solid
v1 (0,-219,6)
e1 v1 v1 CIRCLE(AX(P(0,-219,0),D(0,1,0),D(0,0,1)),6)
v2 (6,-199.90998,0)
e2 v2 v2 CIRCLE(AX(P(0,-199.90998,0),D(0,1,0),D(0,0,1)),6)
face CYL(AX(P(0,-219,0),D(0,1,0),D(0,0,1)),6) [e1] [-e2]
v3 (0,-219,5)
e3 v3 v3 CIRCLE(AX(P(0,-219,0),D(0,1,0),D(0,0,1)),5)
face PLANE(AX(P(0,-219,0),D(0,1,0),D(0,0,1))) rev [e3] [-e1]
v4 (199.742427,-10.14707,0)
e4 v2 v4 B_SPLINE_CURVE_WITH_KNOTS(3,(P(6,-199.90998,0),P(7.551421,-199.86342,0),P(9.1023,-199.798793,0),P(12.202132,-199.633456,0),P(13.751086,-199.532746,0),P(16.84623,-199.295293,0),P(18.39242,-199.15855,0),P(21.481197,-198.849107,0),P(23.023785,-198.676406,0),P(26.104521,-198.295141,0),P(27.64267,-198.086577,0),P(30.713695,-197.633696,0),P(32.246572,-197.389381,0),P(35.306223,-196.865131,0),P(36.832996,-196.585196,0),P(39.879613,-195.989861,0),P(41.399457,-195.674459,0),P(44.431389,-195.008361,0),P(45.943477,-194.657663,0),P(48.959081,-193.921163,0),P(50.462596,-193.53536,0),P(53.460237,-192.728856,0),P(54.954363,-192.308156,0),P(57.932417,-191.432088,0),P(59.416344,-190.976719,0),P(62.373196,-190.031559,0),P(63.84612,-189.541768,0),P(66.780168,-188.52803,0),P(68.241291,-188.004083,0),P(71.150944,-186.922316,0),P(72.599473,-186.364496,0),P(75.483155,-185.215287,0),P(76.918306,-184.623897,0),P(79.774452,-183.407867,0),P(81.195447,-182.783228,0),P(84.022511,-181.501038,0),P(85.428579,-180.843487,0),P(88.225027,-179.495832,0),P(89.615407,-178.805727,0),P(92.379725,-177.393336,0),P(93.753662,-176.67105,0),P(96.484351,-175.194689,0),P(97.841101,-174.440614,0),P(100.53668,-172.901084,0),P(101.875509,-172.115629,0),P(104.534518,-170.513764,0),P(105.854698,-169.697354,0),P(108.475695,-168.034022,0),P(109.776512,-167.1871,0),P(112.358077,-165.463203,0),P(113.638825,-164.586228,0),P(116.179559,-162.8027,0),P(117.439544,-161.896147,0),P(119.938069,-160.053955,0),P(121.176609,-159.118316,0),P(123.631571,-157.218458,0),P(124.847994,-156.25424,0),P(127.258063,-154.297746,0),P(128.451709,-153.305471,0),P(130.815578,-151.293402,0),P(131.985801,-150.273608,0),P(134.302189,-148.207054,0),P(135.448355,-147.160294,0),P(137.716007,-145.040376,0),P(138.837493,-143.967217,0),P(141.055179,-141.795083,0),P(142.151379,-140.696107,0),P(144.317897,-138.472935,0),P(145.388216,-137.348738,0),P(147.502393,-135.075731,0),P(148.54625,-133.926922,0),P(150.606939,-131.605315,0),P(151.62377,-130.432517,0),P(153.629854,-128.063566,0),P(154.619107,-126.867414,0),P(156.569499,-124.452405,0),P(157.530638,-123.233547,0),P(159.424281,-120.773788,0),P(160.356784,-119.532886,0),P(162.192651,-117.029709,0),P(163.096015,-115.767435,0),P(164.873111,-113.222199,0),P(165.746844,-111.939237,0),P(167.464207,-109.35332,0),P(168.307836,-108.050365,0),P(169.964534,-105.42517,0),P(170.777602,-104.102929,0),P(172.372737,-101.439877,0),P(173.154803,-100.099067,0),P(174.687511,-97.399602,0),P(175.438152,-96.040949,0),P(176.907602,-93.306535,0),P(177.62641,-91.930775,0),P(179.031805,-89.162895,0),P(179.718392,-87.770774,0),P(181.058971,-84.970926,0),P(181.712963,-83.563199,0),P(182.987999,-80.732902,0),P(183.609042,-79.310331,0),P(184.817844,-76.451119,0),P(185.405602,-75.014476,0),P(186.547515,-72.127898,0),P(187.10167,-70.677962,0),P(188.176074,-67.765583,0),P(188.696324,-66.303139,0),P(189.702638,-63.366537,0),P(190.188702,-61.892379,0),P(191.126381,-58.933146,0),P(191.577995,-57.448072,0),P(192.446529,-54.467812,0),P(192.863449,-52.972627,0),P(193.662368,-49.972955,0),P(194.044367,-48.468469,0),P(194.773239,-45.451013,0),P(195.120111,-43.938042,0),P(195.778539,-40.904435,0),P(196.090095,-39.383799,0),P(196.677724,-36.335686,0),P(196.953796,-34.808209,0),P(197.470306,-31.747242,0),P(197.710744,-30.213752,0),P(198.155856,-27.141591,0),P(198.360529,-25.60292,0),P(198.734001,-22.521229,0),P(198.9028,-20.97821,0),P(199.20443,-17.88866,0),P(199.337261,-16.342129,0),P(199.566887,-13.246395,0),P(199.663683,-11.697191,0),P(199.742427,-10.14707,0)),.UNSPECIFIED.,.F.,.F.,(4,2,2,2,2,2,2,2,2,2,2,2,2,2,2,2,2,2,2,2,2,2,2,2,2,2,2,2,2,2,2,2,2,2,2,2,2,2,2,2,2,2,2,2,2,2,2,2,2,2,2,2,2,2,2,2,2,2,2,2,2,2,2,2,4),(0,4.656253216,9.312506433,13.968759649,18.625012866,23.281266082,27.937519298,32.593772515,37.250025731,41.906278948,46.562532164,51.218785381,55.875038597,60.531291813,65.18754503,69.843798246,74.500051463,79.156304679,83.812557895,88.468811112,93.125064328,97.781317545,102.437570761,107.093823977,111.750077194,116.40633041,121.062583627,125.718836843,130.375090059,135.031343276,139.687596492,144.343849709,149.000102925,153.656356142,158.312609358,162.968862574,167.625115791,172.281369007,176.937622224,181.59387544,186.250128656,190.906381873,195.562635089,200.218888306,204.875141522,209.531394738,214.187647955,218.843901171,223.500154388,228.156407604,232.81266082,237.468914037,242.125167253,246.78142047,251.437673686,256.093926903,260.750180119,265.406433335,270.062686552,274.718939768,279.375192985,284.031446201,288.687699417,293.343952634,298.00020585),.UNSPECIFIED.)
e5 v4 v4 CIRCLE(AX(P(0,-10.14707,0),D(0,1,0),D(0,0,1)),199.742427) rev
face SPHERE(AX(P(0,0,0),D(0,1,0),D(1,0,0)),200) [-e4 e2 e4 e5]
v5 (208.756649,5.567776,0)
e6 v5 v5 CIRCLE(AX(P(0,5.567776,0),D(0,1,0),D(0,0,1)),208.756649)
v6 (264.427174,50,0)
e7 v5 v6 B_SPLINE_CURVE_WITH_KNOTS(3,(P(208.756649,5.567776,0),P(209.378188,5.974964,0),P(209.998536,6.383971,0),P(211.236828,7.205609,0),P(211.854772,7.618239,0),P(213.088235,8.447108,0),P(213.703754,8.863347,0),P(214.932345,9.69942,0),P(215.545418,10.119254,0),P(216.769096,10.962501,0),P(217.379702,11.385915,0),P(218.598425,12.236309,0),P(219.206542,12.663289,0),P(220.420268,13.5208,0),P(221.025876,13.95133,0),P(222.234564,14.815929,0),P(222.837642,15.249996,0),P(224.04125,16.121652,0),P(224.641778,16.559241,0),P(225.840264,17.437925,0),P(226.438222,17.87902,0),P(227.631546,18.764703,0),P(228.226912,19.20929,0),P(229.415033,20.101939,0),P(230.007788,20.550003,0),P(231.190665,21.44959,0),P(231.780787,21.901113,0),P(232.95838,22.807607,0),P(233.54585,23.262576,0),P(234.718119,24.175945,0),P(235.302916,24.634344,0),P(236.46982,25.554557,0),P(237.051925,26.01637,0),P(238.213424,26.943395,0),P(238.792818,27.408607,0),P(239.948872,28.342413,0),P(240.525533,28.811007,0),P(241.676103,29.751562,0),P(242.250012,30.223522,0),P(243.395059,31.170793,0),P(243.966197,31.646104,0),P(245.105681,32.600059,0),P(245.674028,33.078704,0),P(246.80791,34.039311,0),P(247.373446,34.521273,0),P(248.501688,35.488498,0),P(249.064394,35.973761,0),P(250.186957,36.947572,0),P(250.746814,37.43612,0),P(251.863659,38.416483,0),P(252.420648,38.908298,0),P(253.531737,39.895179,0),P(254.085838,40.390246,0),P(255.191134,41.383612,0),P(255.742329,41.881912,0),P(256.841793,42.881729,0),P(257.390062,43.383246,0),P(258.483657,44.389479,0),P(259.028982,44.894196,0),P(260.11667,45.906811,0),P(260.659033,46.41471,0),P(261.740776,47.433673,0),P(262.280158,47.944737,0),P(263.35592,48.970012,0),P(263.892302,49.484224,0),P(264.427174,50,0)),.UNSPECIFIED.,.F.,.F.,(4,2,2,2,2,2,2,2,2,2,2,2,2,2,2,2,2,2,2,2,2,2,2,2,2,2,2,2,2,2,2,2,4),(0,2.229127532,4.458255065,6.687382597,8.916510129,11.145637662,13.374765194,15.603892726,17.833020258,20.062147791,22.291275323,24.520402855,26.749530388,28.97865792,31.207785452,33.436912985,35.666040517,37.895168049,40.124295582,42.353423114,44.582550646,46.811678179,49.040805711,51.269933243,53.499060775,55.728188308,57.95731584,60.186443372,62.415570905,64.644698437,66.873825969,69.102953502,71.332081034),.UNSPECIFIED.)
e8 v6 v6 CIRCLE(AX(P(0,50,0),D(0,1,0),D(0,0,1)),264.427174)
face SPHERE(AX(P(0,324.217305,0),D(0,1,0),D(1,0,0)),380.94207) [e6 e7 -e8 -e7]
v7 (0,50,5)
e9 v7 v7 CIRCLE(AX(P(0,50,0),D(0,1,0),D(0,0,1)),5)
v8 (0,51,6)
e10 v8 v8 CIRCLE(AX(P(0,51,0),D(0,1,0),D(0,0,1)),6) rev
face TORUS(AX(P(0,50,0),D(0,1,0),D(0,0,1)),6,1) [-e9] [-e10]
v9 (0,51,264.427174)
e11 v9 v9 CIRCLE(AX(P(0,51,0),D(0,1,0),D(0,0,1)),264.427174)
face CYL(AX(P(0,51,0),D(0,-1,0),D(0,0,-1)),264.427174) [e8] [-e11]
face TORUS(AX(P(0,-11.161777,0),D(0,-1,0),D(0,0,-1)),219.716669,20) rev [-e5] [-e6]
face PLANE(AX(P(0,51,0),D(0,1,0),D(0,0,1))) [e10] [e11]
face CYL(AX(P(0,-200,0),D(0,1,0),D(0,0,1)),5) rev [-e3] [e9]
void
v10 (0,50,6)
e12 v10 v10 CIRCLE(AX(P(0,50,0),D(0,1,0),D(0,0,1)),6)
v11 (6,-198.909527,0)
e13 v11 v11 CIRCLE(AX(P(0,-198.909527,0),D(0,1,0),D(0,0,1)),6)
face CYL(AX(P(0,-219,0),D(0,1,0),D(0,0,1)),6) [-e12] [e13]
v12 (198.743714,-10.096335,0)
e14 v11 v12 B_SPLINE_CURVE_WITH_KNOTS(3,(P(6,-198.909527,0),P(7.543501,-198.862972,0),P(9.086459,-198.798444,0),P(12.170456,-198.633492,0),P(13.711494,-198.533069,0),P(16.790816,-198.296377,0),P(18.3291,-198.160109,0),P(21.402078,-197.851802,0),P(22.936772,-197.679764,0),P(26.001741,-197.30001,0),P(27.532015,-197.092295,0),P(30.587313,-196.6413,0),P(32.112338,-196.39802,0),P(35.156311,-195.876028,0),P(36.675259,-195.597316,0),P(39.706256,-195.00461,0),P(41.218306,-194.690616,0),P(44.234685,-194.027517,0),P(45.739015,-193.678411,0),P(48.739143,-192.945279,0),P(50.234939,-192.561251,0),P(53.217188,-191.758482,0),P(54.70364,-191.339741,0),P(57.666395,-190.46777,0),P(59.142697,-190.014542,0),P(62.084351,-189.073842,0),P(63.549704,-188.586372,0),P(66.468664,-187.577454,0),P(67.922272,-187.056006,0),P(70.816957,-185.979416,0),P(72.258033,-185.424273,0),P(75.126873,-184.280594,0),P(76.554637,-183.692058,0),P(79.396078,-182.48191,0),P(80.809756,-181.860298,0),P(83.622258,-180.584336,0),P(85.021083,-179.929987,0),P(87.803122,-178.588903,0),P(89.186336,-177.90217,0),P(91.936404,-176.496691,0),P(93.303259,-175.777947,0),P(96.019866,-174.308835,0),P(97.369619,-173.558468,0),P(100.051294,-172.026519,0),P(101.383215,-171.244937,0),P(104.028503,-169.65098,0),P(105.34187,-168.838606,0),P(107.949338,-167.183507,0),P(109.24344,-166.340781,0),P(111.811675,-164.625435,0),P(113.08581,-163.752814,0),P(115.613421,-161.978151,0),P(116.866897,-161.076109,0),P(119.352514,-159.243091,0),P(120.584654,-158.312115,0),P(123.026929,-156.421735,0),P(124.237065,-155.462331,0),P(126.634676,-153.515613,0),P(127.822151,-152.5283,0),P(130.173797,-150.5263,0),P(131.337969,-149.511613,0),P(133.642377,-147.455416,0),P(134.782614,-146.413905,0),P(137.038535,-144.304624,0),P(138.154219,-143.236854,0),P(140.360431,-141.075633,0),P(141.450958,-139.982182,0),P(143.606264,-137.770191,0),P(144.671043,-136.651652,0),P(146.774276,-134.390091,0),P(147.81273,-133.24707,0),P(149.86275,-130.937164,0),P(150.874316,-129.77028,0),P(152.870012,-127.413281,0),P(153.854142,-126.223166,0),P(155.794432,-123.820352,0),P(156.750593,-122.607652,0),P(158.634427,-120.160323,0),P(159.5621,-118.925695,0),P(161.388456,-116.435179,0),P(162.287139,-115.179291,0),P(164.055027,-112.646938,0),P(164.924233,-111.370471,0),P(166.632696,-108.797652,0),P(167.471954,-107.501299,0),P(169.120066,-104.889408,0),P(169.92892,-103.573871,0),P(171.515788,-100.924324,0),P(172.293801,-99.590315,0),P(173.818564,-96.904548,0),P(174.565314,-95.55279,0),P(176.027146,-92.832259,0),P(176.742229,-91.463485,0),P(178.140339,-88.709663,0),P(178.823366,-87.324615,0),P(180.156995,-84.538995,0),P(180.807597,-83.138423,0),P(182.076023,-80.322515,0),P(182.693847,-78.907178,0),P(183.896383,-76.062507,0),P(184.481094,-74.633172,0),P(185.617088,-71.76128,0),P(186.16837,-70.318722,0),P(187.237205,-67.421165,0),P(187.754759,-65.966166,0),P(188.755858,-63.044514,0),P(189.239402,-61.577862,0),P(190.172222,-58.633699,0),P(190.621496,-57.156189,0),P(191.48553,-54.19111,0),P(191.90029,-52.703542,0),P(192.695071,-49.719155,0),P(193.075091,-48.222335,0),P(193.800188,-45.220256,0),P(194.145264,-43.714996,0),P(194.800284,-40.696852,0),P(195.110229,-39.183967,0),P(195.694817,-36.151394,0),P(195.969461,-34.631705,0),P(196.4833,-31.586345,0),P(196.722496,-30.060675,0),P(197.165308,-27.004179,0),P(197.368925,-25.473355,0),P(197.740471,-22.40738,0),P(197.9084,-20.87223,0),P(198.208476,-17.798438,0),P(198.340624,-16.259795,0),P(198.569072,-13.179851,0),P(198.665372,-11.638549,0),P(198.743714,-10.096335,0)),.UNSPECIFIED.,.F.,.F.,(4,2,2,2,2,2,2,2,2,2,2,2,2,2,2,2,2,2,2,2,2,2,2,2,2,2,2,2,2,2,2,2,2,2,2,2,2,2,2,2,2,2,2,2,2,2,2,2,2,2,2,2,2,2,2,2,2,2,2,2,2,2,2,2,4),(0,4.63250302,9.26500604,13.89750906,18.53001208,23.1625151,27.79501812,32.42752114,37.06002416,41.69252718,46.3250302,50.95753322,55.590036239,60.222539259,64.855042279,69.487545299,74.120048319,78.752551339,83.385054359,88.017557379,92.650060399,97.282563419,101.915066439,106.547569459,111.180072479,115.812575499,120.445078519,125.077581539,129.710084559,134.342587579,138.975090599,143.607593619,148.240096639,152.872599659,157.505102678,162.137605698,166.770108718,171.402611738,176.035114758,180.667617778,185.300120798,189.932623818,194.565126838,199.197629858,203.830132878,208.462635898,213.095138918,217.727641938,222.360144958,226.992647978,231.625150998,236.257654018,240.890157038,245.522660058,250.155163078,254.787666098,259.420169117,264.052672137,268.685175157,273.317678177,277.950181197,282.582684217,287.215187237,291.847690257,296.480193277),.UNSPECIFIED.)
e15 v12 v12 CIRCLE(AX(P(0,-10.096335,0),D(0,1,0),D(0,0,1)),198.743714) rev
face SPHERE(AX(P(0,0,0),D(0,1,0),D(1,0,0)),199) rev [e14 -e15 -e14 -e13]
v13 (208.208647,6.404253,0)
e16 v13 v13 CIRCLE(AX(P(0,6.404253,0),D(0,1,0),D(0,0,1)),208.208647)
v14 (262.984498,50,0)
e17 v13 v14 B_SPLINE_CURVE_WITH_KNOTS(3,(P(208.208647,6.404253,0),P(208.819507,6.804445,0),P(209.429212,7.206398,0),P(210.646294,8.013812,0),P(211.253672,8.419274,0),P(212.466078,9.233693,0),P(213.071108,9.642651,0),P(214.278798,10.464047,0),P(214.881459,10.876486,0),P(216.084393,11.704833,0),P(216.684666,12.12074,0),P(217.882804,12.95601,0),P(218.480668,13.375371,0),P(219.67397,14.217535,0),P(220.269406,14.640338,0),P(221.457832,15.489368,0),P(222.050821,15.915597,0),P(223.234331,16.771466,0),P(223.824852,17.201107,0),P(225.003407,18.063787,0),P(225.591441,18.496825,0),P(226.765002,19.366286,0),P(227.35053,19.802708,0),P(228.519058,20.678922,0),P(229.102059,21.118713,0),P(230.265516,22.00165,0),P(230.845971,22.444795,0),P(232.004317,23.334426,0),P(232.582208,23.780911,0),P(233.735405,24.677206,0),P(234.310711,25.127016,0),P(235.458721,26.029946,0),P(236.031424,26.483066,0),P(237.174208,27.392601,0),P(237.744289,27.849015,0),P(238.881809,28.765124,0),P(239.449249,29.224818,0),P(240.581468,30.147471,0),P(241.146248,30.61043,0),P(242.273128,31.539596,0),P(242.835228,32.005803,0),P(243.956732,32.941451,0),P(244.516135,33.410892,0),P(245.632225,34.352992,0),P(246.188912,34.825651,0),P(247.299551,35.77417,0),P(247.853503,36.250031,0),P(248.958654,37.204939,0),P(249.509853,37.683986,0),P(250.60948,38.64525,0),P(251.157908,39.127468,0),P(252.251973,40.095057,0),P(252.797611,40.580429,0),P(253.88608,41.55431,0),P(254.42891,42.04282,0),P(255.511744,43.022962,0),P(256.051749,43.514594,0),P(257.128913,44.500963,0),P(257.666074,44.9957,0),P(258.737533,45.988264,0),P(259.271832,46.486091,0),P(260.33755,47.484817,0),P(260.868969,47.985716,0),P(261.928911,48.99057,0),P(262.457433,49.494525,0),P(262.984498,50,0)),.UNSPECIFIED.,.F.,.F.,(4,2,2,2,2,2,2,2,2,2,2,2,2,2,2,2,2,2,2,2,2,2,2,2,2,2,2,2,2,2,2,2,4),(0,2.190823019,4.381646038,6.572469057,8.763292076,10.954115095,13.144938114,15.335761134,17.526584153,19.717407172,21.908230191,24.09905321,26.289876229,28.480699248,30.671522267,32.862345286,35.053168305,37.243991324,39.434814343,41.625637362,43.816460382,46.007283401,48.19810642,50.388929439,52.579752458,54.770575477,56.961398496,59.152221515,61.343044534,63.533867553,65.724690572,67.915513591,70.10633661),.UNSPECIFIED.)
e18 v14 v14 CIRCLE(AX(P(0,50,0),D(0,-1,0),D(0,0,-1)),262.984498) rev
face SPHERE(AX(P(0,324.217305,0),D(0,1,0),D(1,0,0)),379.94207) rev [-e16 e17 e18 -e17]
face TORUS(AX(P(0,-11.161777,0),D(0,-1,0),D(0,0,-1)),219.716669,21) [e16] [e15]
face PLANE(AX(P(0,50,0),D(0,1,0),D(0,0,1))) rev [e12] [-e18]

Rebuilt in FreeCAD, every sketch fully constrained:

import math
import FreeCAD as App
import Part
import Sketcher
from FreeCAD import Vector
Q = App.Units.Quantity


def edges_at(feature, points):
    """Names of the edges that pass closest to the given points."""
    edges = feature.Shape.Edges
    near = lambda p: min(range(len(edges)), key=lambda i: edges[i].distToShape(Part.Vertex(*p))[0])
    return sorted({f"Edge{near(p) + 1}" for p in points})


def faces_at(feature, points):
    """Names of the faces that lie closest to the given points."""
    faces = feature.Shape.Faces
    near = lambda p: min(range(len(faces)), key=lambda i: faces[i].distToShape(Part.Vertex(*p))[0])
    return sorted({f"Face{near(p) + 1}" for p in points})

doc = App.newDocument("Part")
body = doc.addObject("PartDesign::Body", "Body")

# Sketch on XY plane
sketch1 = body.newObject("Sketcher::SketchObject", "Sketch")
sketch1.AttachmentSupport = (doc.getObject("XY_Plane"), [""])
sketch1.MapMode = "FlatFace"
sketch1.addGeometry([
    Part.LineSegment(Vector(0, 50, 0), Vector(0, -200, 0)),
    Part.ArcOfCircle(Part.Circle(Vector(0, 0, 0), Vector(0, 0, 1), 200), math.radians(-90), math.radians(0)),
    Part.ArcOfCircle(Part.Circle(Vector(0, 324, 0), Vector(0, 0, 1), 381), math.radians(-58.33), math.radians(-46.04)),
    Part.LineSegment(Vector(264, 50, 0), Vector(0, 50, 0)),
], False)
sketch1.addConstraint([
    Sketcher.Constraint("Coincident", 0, 2, 1, 1),
    Sketcher.Constraint("Coincident", 1, 2, 2, 1),
    Sketcher.Constraint("Coincident", 2, 2, 3, 1),
    Sketcher.Constraint("Coincident", 3, 2, 0, 1),
    Sketcher.Constraint("Vertical", 0),
    Sketcher.Constraint("Horizontal", 3),
    Sketcher.Constraint("Coincident", 1, 3, -1, 1),
    Sketcher.Constraint("PointOnObject", 2, 3, -2),
    Sketcher.Constraint("PointOnObject", 0, 2, -2),
    Sketcher.Constraint("PointOnObject", 1, 2, -1),
    Sketcher.Constraint("Radius", 1, Q("200 mm")),
    Sketcher.Constraint("DistanceY", 0, 2, 0, 1, Q("250 mm")),
    Sketcher.Constraint("Radius", 2, Q("380.94207 mm")),
])
revolution = body.newObject("PartDesign::Revolution", "Revolution")
revolution.Profile = sketch1
revolution.ReferenceAxis = (sketch1, ["V_Axis"])
revolution.Angle = 360
doc.recompute()

fillet = body.newObject("PartDesign::Fillet", "Fillet")
fillet.Base = (revolution, edges_at(revolution, [(-200, 0, 0)]))
fillet.Radius = 20
doc.recompute()

thickness = body.newObject("PartDesign::Thickness", "Thickness")
thickness.Base = (fillet, faces_at(fillet, [(0, 50, 0)]))
thickness.Value = 1
thickness.Reversed = True
thickness.Join = "Intersection"

# Sketch on XZ plane
sketch2 = body.newObject("Sketcher::SketchObject", "Sketch001")
sketch2.AttachmentSupport = (doc.getObject("XZ_Plane"), [""])
sketch2.MapMode = "FlatFace"
sketch2.AttachmentOffset = App.Placement(Vector(0, 0, -50), App.Rotation())
sketch2.addGeometry(Part.Circle(Vector(0, 0, 0), Vector(0, 0, 1), 264), False)
sketch2.addConstraint([
    Sketcher.Constraint("Coincident", 0, 3, -1, 1),
    Sketcher.Constraint("Diameter", 0, Q("528.854349 mm")),
])
pad1 = body.newObject("PartDesign::Pad", "Pad")
pad1.Profile = sketch2
pad1.Length = 1
pad1.Reversed = True

# Sketch on XZ plane
sketch3 = body.newObject("Sketcher::SketchObject", "Sketch002")
sketch3.AttachmentSupport = (doc.getObject("XZ_Plane"), [""])
sketch3.MapMode = "FlatFace"
sketch3.AttachmentOffset = App.Placement(Vector(0, 0, -51), App.Rotation())
sketch3.addGeometry(Part.Circle(Vector(0, 0, 0), Vector(0, 0, 1), 5), False)
sketch3.addConstraint([
    Sketcher.Constraint("Coincident", 0, 3, -1, 1),
    Sketcher.Constraint("Diameter", 0, Q("10 mm")),
])
pocket1 = body.newObject("PartDesign::Pocket", "Pocket")
pocket1.Profile = sketch3
pocket1.Type = "ThroughAll"
pocket1.Reversed = True

# Sketch on XZ plane
sketch4 = body.newObject("Sketcher::SketchObject", "Sketch003")
sketch4.AttachmentSupport = (doc.getObject("XZ_Plane"), [""])
sketch4.MapMode = "FlatFace"
sketch4.AttachmentOffset = App.Placement(Vector(0, 0, -51), App.Rotation())
sketch4.addGeometry([
    Part.Circle(Vector(0, 0, 0), Vector(0, 0, 1), 6),
    Part.Circle(Vector(0, 0, 0), Vector(0, 0, 1), 5),
], False)
sketch4.addConstraint([
    Sketcher.Constraint("Coincident", 0, 3, -1, 1),
    Sketcher.Constraint("Coincident", 1, 3, -1, 1),
    Sketcher.Constraint("Diameter", 0, Q("12 mm")),
    Sketcher.Constraint("Diameter", 1, Q("10 mm")),
])
pad2 = body.newObject("PartDesign::Pad", "Pad001")
pad2.Profile = sketch4
pad2.Length = 270
doc.recompute()

fillet2 = body.newObject("PartDesign::Fillet", "Fillet001")
fillet2.Base = (pad2, edges_at(pad2, [(0, 51, -5)]))
fillet2.Radius = 1

doc.recompute()
